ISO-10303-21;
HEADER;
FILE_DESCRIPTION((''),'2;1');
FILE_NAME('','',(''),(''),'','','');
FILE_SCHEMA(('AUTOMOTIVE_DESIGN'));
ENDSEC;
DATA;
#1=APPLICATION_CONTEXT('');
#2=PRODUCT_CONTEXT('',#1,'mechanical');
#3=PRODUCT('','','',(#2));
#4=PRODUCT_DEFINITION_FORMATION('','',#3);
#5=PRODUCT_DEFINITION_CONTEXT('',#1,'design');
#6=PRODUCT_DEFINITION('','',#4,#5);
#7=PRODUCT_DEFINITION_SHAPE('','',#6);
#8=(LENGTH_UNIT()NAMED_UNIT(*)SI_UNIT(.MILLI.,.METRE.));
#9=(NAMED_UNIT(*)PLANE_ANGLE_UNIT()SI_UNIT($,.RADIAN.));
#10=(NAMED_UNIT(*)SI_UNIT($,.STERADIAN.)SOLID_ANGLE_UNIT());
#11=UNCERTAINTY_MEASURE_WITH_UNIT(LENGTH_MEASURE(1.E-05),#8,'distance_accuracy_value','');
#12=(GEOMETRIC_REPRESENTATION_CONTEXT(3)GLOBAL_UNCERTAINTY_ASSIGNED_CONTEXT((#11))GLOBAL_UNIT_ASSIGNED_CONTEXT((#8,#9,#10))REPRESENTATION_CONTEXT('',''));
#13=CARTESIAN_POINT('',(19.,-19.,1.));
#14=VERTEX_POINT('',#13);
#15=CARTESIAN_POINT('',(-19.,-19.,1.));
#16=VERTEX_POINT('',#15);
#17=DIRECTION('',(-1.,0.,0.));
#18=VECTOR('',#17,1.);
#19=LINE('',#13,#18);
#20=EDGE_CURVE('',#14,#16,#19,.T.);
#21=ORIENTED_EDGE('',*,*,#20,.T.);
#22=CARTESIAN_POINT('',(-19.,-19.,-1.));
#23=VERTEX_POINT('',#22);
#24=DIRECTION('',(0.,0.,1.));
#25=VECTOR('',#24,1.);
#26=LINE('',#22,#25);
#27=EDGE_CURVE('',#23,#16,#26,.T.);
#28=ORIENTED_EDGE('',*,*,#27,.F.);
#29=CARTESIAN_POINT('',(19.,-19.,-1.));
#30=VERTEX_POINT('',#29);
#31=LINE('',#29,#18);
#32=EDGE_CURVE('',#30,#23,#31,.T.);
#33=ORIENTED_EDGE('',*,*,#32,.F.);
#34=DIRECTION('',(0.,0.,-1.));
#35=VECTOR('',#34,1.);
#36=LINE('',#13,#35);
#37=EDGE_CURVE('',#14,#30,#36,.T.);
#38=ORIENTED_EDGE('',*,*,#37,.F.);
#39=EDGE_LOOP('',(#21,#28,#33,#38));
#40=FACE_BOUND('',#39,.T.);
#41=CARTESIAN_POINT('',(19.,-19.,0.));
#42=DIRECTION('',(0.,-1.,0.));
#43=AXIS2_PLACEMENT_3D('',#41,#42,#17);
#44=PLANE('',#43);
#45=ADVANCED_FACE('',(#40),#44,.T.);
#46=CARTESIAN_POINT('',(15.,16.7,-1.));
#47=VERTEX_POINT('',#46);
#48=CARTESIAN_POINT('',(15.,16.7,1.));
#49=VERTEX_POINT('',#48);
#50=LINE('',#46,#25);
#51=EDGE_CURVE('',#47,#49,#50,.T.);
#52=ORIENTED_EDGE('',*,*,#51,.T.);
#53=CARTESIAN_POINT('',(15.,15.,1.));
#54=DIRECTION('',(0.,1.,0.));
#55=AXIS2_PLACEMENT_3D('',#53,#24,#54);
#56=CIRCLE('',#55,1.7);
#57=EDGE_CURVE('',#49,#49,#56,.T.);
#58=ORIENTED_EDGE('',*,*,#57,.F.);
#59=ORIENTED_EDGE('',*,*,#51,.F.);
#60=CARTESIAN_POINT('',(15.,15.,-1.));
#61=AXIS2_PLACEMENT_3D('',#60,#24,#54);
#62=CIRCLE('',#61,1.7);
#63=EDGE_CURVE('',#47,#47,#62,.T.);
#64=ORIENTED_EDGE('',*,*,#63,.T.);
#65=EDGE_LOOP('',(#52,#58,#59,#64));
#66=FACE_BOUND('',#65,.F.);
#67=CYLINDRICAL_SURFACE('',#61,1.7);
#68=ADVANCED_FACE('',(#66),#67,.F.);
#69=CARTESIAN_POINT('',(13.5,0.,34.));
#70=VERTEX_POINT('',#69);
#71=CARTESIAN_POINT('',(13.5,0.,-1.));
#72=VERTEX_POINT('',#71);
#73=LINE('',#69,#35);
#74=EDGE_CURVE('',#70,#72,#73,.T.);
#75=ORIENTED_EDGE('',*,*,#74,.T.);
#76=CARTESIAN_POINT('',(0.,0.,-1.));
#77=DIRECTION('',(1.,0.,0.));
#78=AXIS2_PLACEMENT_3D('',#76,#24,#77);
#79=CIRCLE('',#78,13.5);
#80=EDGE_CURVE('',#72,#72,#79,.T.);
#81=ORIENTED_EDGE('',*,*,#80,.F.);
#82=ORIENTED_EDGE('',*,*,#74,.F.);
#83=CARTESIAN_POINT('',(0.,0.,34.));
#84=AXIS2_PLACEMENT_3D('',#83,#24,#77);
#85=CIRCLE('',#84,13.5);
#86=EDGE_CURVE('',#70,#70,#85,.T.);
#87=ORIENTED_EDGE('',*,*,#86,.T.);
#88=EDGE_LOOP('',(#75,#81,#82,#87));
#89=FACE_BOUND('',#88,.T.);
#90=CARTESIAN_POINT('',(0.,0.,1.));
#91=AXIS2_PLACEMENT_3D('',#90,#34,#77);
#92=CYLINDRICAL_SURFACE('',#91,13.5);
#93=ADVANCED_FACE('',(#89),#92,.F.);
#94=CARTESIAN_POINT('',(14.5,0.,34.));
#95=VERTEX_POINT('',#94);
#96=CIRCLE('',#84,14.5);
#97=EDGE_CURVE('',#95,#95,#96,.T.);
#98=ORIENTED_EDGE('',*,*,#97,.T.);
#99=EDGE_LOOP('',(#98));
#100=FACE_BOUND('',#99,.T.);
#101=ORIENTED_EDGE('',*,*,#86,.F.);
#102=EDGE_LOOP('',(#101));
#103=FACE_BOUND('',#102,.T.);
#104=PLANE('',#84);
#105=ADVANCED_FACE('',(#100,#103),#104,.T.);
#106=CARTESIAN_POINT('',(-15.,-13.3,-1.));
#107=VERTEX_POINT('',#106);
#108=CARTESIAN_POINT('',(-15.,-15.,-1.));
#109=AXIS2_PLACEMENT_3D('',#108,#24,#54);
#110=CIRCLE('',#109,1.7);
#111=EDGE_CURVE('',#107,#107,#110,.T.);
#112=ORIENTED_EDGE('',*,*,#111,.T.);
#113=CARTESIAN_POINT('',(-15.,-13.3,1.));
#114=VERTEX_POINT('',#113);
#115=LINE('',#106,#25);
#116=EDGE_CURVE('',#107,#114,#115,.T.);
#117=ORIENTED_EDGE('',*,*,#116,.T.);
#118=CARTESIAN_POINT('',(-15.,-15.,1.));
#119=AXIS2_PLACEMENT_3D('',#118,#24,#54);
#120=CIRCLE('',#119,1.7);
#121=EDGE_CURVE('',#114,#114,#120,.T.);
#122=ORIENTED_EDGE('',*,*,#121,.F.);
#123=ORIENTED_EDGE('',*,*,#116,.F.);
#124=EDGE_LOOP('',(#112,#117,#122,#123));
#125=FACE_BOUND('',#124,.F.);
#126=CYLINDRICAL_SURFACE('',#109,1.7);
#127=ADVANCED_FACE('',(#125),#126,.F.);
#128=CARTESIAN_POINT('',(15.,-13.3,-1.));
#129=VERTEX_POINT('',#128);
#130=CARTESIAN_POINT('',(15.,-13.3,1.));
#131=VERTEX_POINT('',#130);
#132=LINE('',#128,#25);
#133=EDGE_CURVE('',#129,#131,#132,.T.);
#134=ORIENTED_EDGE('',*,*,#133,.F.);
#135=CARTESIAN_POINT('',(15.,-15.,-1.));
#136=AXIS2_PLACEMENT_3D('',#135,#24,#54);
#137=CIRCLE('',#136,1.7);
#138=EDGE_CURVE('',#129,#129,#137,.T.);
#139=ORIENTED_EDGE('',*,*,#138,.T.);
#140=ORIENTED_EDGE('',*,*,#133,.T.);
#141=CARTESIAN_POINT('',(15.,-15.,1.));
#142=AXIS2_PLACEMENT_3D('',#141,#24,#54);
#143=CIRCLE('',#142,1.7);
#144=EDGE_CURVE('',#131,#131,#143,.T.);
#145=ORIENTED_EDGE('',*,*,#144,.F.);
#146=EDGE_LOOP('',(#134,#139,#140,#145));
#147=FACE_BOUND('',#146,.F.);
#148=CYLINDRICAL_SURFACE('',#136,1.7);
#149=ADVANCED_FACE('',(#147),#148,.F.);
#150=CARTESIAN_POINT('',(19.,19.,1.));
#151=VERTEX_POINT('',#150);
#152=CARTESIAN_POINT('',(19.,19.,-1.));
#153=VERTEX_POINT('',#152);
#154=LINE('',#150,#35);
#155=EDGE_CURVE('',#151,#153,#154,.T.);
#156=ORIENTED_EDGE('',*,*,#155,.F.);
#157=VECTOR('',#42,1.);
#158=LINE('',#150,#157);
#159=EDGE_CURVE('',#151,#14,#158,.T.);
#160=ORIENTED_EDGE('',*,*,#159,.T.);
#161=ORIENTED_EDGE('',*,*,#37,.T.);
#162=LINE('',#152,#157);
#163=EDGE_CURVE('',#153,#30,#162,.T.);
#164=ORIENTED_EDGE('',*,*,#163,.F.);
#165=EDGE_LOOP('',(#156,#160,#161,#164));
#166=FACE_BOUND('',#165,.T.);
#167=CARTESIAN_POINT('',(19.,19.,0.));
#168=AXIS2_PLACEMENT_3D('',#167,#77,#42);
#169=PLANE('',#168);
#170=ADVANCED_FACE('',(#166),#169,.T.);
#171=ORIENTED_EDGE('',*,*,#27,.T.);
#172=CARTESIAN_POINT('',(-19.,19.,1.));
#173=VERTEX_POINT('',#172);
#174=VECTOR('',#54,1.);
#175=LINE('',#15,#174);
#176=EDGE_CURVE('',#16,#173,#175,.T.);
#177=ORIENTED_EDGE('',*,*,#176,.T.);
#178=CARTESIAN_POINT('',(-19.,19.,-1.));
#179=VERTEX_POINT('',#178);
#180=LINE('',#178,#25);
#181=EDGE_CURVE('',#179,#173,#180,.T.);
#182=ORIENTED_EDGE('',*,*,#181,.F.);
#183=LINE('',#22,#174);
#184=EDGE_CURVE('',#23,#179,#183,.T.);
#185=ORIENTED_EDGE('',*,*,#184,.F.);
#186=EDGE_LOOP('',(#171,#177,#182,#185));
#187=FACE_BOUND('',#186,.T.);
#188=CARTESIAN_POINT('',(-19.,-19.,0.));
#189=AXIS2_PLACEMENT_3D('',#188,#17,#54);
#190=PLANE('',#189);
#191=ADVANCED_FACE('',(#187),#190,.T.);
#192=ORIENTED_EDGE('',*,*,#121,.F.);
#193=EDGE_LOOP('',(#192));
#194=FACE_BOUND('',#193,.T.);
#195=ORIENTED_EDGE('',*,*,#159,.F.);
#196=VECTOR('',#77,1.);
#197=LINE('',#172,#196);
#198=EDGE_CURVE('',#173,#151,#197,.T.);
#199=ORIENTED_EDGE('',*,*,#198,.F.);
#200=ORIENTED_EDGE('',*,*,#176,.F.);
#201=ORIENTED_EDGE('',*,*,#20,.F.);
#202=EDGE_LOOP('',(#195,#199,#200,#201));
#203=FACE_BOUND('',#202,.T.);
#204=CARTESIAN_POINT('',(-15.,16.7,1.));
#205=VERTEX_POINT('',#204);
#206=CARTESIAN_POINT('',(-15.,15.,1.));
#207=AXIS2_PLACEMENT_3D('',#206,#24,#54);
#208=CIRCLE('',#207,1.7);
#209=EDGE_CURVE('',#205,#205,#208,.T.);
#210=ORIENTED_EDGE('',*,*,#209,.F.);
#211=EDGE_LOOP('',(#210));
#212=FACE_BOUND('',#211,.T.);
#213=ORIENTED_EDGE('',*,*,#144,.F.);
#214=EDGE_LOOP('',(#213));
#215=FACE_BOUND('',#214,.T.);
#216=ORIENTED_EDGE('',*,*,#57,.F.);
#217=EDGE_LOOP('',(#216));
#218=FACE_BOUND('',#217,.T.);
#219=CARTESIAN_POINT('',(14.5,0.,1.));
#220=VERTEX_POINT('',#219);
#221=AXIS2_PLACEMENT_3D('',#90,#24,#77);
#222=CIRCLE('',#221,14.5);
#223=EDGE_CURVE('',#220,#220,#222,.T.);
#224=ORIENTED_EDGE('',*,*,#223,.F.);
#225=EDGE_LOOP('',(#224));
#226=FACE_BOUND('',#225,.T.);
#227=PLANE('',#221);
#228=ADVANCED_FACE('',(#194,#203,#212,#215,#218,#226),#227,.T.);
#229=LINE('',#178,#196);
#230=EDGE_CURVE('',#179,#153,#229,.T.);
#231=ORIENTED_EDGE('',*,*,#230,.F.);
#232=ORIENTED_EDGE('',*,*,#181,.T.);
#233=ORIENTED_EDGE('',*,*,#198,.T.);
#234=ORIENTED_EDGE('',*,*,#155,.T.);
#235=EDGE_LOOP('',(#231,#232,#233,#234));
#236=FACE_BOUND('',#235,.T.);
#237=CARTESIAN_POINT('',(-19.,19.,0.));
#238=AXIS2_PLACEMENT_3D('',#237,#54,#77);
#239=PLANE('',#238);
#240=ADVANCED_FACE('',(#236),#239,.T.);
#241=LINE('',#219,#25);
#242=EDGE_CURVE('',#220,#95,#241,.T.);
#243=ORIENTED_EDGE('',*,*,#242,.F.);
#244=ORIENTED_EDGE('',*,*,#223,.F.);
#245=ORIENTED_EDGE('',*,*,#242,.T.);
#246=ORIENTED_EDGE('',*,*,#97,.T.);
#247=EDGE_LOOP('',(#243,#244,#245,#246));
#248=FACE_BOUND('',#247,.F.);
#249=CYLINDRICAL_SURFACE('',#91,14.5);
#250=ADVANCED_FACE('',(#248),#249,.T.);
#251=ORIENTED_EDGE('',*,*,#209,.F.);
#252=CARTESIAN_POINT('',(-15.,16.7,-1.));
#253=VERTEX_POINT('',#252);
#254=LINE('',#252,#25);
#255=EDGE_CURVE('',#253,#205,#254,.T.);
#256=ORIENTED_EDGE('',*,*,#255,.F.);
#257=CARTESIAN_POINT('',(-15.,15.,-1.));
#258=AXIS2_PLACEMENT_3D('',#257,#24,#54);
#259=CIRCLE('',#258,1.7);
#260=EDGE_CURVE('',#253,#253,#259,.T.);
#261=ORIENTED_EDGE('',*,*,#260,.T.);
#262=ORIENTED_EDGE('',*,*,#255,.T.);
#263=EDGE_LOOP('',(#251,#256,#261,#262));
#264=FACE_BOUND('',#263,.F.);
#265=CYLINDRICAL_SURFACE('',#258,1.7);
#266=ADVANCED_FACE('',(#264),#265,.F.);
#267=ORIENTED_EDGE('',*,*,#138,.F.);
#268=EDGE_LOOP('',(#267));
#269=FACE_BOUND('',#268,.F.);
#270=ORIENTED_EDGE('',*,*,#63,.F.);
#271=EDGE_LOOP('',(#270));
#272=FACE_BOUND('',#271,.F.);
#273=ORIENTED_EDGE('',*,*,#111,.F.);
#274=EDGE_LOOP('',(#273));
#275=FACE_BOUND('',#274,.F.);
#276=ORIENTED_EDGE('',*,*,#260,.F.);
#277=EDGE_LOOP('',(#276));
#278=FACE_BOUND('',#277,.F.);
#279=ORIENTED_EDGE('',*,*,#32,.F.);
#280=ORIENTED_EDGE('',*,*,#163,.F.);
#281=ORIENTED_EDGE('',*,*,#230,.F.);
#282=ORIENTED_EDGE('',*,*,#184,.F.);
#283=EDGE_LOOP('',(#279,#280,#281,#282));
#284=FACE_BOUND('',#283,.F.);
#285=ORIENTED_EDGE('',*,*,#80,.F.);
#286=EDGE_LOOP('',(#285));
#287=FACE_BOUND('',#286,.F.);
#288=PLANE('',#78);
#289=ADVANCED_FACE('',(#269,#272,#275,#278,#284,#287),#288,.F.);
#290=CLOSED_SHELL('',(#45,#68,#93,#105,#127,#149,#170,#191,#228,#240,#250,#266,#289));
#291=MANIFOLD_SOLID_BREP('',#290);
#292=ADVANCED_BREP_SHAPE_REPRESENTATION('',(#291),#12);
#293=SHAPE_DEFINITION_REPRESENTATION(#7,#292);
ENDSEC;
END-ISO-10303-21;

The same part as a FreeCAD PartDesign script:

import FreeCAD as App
import Part
import Sketcher
from FreeCAD import Vector


def add_polygon(sketch, points):
    """Adds a closed chain of lines whose ends are joined by coincident constraints."""
    first, n = sketch.GeometryCount, len(points)
    for a, b in zip(points, points[1:] + points[:1]):
        sketch.addGeometry(Part.LineSegment(App.Vector(*a, 0), App.Vector(*b, 0)), False)
    for i in range(n):
        sketch.addConstraint(Sketcher.Constraint("Coincident", first + i, 2, first + (i + 1) % n, 1))

doc = App.newDocument("Part")
body = doc.addObject("PartDesign::Body", "Body")

# Sketch on XY plane
sketch1 = doc.addObject("Sketcher::SketchObject", "Sketch")
body.addObject(sketch1)
sketch1.AttachmentSupport = (doc.XY_Plane, [""])
sketch1.MapMode = "FlatFace"
add_polygon(sketch1, [(19, 19), (-19, 19), (-19, -19), (19, -19)])  # lines 0-3
sketch1.addGeometry(Part.Circle(Vector(0, 0, 0), Vector(0, 0, 1), 13.5), False)  # 4
sketch1.addConstraint([
    Sketcher.Constraint("Horizontal", 0),
    Sketcher.Constraint("Vertical", 1),
    Sketcher.Constraint("Horizontal", 2),
    Sketcher.Constraint("Vertical", 3),
    Sketcher.Constraint("Coincident", 4, 3, -1, 1),
    Sketcher.Constraint("Symmetric", 0, 2, 2, 2, -1, 1),
    Sketcher.Constraint("Equal", 2, 1),
    Sketcher.Constraint("Diameter", 4, 27.0),
    Sketcher.Constraint("DistanceX", 0, 2, 0, 1, 38.0),
])
pad1 = doc.addObject("PartDesign::Pad", "Pad")
body.addObject(pad1)
pad1.Profile = sketch1
pad1.Length = 2
pad1.Midplane = True

# Sketch on XY plane
sketch2 = doc.addObject("Sketcher::SketchObject", "Sketch001")
body.addObject(sketch2)
sketch2.AttachmentSupport = (doc.XY_Plane, [""])
sketch2.MapMode = "FlatFace"
sketch2.AttachmentOffset = App.Placement(Vector(0, 0, 1), App.Rotation())
sketch2.addGeometry([
    Part.Circle(Vector(0, 0, 0), Vector(0, 0, 1), 14.5),
    Part.Circle(Vector(0, 0, 0), Vector(0, 0, 1), 13.5),
], False)
sketch2.addConstraint([
    Sketcher.Constraint("Coincident", 0, 3, -1, 1),
    Sketcher.Constraint("Coincident", 1, 3, -1, 1),
    Sketcher.Constraint("Diameter", 0, 29.0),
    Sketcher.Constraint("Diameter", 1, 27.0),
])
pad2 = doc.addObject("PartDesign::Pad", "Pad001")
body.addObject(pad2)
pad2.Profile = sketch2
pad2.Length = 33

# Sketch on XY plane
sketch3 = doc.addObject("Sketcher::SketchObject", "Sketch002")
body.addObject(sketch3)
sketch3.AttachmentSupport = (doc.XY_Plane, [""])
sketch3.MapMode = "FlatFace"
sketch3.AttachmentOffset = App.Placement(Vector(0, 0, -1), App.Rotation())
sketch3.addGeometry([
    Part.Circle(Vector(-15, -15, 0), Vector(0, 0, 1), 1.7),
    Part.Circle(Vector(15, -15, 0), Vector(0, 0, 1), 1.7),
    Part.Circle(Vector(-15, 15, 0), Vector(0, 0, 1), 1.7),
    Part.Circle(Vector(15, 15, 0), Vector(0, 0, 1), 1.7),
], False)
sketch3.addConstraint([
    Sketcher.Constraint("Equal", 0, 1),
    Sketcher.Constraint("Equal", 1, 2),
    Sketcher.Constraint("Equal", 2, 3),
    Sketcher.Constraint("Symmetric", 1, 3, 2, 3, -1, 1),
    Sketcher.Constraint("Symmetric", 0, 3, 3, 3, -1, 1),
    Sketcher.Constraint("Symmetric", 0, 3, 1, 3, -2),
    Sketcher.Constraint("Diameter", 0, 3.4),
    Sketcher.Constraint("DistanceX", 0, 3, -1, 1, 15.0),
    Sketcher.Constraint("DistanceY", 0, 3, -1, 1, 15.0),
])
doc.recompute()
hole = doc.addObject("PartDesign::Hole", "Hole")
body.addObject(hole)
hole.Profile = sketch3
hole.ThreadType = "None"
hole.Diameter = 3.4
hole.DepthType = "ThroughAll"
hole.Reversed = True

doc.recompute()
